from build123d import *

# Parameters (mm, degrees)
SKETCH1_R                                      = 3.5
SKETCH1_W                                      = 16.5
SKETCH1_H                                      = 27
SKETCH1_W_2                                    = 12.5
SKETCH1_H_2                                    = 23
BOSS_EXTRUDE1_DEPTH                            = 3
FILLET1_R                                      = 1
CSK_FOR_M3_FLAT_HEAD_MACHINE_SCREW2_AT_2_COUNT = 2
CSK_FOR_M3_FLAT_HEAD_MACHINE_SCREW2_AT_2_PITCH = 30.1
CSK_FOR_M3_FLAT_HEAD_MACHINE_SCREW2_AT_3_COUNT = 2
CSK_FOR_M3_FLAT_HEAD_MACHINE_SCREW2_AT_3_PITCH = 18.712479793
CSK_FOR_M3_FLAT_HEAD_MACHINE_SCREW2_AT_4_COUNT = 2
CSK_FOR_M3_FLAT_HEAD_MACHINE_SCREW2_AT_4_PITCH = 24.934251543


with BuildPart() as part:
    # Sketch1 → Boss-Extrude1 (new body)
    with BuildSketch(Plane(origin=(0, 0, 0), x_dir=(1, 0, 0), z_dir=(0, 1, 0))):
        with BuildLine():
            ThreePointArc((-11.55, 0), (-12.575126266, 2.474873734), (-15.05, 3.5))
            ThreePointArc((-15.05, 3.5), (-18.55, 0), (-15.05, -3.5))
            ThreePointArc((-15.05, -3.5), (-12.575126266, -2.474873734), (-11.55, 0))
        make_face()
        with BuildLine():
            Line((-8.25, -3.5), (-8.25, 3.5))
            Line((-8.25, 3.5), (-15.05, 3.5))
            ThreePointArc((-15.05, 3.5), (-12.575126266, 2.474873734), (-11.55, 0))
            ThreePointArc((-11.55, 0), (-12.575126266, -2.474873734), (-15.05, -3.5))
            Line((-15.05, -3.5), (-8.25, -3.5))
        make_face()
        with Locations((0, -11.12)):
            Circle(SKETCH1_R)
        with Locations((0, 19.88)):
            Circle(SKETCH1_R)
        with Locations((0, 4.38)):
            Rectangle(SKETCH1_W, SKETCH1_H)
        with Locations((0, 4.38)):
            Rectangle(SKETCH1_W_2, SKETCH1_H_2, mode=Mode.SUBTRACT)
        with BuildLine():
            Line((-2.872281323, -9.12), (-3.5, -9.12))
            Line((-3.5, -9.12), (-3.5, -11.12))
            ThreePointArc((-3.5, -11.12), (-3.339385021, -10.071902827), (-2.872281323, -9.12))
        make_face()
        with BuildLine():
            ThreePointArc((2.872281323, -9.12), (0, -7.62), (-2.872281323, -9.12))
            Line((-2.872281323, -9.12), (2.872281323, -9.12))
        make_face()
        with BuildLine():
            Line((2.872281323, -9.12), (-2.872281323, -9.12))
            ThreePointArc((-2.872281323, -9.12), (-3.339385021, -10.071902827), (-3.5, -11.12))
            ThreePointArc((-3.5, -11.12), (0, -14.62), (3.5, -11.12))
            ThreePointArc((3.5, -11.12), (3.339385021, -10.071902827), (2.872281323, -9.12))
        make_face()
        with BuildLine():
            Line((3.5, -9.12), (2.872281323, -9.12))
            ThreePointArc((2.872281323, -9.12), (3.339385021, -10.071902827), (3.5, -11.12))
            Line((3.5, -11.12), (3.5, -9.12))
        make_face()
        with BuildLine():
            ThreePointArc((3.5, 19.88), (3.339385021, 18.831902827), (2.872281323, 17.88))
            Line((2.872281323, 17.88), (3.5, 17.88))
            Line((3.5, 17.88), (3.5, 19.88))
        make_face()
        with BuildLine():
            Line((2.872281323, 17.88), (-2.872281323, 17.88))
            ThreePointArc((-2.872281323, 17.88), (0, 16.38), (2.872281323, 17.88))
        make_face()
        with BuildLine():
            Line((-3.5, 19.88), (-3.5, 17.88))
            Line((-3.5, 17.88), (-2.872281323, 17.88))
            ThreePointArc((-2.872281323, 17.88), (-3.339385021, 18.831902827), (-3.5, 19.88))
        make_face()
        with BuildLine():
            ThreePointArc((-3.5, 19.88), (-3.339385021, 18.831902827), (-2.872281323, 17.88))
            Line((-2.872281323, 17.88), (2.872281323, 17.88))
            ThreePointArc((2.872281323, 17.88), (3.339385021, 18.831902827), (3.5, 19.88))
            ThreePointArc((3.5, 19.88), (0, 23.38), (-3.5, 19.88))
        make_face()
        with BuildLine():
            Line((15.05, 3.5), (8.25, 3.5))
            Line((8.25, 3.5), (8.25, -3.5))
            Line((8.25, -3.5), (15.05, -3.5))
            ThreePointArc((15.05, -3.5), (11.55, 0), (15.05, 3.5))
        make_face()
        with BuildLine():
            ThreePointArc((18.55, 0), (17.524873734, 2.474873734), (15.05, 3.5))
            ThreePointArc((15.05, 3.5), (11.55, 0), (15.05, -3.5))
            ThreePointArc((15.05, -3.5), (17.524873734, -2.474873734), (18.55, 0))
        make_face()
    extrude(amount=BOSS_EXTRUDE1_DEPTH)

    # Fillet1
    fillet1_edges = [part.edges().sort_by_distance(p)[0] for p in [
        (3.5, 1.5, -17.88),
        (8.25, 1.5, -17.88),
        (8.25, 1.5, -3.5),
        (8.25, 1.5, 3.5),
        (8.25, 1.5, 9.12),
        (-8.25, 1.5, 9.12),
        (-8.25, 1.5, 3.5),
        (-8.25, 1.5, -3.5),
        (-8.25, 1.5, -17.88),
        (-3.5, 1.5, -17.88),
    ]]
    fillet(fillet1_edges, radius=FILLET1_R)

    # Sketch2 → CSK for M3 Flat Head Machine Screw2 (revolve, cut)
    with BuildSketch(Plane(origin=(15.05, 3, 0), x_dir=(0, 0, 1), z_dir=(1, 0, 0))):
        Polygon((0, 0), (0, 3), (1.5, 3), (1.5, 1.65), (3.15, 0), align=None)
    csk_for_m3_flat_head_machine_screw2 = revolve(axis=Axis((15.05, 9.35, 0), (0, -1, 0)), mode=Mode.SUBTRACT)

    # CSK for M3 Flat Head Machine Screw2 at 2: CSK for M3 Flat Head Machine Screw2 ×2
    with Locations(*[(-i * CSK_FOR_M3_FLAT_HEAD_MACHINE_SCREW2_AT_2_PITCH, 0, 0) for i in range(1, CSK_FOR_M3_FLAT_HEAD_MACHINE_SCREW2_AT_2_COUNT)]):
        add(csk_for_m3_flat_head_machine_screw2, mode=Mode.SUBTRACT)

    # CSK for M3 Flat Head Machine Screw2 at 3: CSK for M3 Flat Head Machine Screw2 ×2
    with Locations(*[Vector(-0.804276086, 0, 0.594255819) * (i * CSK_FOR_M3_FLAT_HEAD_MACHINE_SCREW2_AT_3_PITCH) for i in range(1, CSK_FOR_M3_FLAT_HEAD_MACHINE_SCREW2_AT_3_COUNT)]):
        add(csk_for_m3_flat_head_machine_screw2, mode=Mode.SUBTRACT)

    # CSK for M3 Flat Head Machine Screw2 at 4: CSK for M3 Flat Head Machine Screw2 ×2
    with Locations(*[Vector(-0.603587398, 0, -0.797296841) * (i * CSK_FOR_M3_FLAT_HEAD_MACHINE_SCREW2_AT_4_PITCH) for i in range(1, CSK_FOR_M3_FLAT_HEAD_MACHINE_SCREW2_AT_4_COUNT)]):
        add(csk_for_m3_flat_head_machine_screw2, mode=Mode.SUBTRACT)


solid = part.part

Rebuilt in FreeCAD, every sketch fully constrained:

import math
import FreeCAD as App
import Part
import Sketcher
Q = App.Units.Quantity


def edges_at(feature, points):
    """Names of the edges that pass closest to the given points."""
    edges = feature.Shape.Edges
    near = lambda p: min(range(len(edges)), key=lambda i: edges[i].distToShape(Part.Vertex(*p))[0])
    return sorted({f"Edge{near(p) + 1}" for p in points})


def add_polygon(sketch, points):
    """Adds a closed chain of lines whose ends are joined by coincident constraints."""
    first, n = sketch.GeometryCount, len(points)
    for a, b in zip(points, points[1:] + points[:1]):
        sketch.addGeometry(Part.LineSegment(App.Vector(*a, 0), App.Vector(*b, 0)), False)
    for i in range(n):
        sketch.addConstraint(Sketcher.Constraint("Coincident", first + i, 2, first + (i + 1) % n, 1))

doc = App.newDocument("Part")
body = doc.addObject("PartDesign::Body", "Body")

# Sketch on XZ plane
sketch1 = body.newObject("Sketcher::SketchObject", "Sketch")
sketch1.AttachmentSupport = (doc.getObject("XZ_Plane"), [""])
sketch1.MapMode = "FlatFace"
sketch1.addGeometry(Part.LineSegment(App.Vector(-8.2, -17.9, 0), App.Vector(-8.2, -3.5, 0)), False)  # 0
sketch1.addGeometry(Part.LineSegment(App.Vector(-8.2, -3.5, 0), App.Vector(-15.1, -3.5, 0)), False)  # 1
sketch1.addGeometry(Part.ArcOfCircle(Part.Circle(App.Vector(-15.1, 0, 0), App.Vector(0, 0, 1), 3.5), math.radians(90), math.radians(270)), False)  # 2
sketch1.addGeometry(Part.LineSegment(App.Vector(-15.1, 3.5, 0), App.Vector(-8.2, 3.5, 0)), False)  # 3
sketch1.addGeometry(Part.LineSegment(App.Vector(-8.2, 3.5, 0), App.Vector(-8.2, 9.1, 0)), False)  # 4
sketch1.addGeometry(Part.LineSegment(App.Vector(-8.2, 9.1, 0), App.Vector(-3.5, 9.1, 0)), False)  # 5
sketch1.addGeometry(Part.LineSegment(App.Vector(-3.5, 9.1, 0), App.Vector(-3.5, 11.1, 0)), False)  # 6
sketch1.addGeometry(Part.ArcOfCircle(Part.Circle(App.Vector(0, 11.1, 0), App.Vector(0, 0, 1), 3.5), math.radians(0), math.radians(180)), False)  # 7
sketch1.addGeometry(Part.LineSegment(App.Vector(3.5, 11.1, 0), App.Vector(3.5, 9.1, 0)), False)  # 8
sketch1.addGeometry(Part.LineSegment(App.Vector(3.5, 9.1, 0), App.Vector(8.2, 9.1, 0)), False)  # 9
sketch1.addGeometry(Part.LineSegment(App.Vector(8.2, 9.1, 0), App.Vector(8.2, 3.5, 0)), False)  # 10
sketch1.addGeometry(Part.LineSegment(App.Vector(8.2, 3.5, 0), App.Vector(15.1, 3.5, 0)), False)  # 11
sketch1.addGeometry(Part.ArcOfCircle(Part.Circle(App.Vector(15, 0, 0), App.Vector(0, 0, 1), 3.5), math.radians(0), math.radians(90)), False)  # 12
sketch1.addGeometry(Part.ArcOfCircle(Part.Circle(App.Vector(15, 0, 0), App.Vector(0, 0, 1), 3.5), math.radians(-90), math.radians(0)), False)  # 13
sketch1.addGeometry(Part.LineSegment(App.Vector(15.1, -3.5, 0), App.Vector(8.2, -3.5, 0)), False)  # 14
sketch1.addGeometry(Part.LineSegment(App.Vector(8.2, -3.5, 0), App.Vector(8.2, -17.9, 0)), False)  # 15
sketch1.addGeometry(Part.LineSegment(App.Vector(8.2, -17.9, 0), App.Vector(3.5, -17.9, 0)), False)  # 16
sketch1.addGeometry(Part.LineSegment(App.Vector(3.5, -17.9, 0), App.Vector(3.5, -19.9, 0)), False)  # 17
sketch1.addGeometry(Part.ArcOfCircle(Part.Circle(App.Vector(0, -19.9, 0), App.Vector(0, 0, 1), 3.5), math.radians(180), math.radians(360)), False)  # 18
sketch1.addGeometry(Part.LineSegment(App.Vector(-3.5, -19.9, 0), App.Vector(-3.5, -17.9, 0)), False)  # 19
sketch1.addGeometry(Part.LineSegment(App.Vector(-3.5, -17.9, 0), App.Vector(-8.2, -17.9, 0)), False)  # 20
add_polygon(sketch1, [(6.2, -15.9), (6.2, 7.1), (-6.2, 7.1), (-6.2, -15.9)])  # lines 21-24
sketch1.addConstraint(Sketcher.Constraint("Coincident", 0, 2, 1, 1))
sketch1.addConstraint(Sketcher.Constraint("Tangent", 1, 2, 2, 2))
sketch1.addConstraint(Sketcher.Constraint("Tangent", 2, 1, 3, 1))
sketch1.addConstraint(Sketcher.Constraint("Coincident", 3, 2, 4, 1))
sketch1.addConstraint(Sketcher.Constraint("Coincident", 4, 2, 5, 1))
sketch1.addConstraint(Sketcher.Constraint("Coincident", 5, 2, 6, 1))
sketch1.addConstraint(Sketcher.Constraint("Tangent", 6, 2, 7, 2))
sketch1.addConstraint(Sketcher.Constraint("Tangent", 7, 1, 8, 1))
sketch1.addConstraint(Sketcher.Constraint("Coincident", 8, 2, 9, 1))
sketch1.addConstraint(Sketcher.Constraint("Coincident", 9, 2, 10, 1))
sketch1.addConstraint(Sketcher.Constraint("Coincident", 10, 2, 11, 1))
sketch1.addConstraint(Sketcher.Constraint("Tangent", 11, 2, 12, 2))
sketch1.addConstraint(Sketcher.Constraint("Tangent", 12, 1, 13, 2))
sketch1.addConstraint(Sketcher.Constraint("Tangent", 13, 1, 14, 1))
sketch1.addConstraint(Sketcher.Constraint("Coincident", 14, 2, 15, 1))
sketch1.addConstraint(Sketcher.Constraint("Coincident", 15, 2, 16, 1))
sketch1.addConstraint(Sketcher.Constraint("Coincident", 16, 2, 17, 1))
sketch1.addConstraint(Sketcher.Constraint("Tangent", 17, 2, 18, 2))
sketch1.addConstraint(Sketcher.Constraint("Tangent", 18, 1, 19, 1))
sketch1.addConstraint(Sketcher.Constraint("Coincident", 19, 2, 20, 1))
sketch1.addConstraint(Sketcher.Constraint("Coincident", 20, 2, 0, 1))
sketch1.addConstraint(Sketcher.Constraint("Vertical", 0))
sketch1.addConstraint(Sketcher.Constraint("Horizontal", 1))
sketch1.addConstraint(Sketcher.Constraint("Horizontal", 3))
sketch1.addConstraint(Sketcher.Constraint("Vertical", 4))
sketch1.addConstraint(Sketcher.Constraint("Horizontal", 5))
sketch1.addConstraint(Sketcher.Constraint("Vertical", 6))
sketch1.addConstraint(Sketcher.Constraint("Vertical", 8))
sketch1.addConstraint(Sketcher.Constraint("Horizontal", 9))
sketch1.addConstraint(Sketcher.Constraint("Vertical", 10))
sketch1.addConstraint(Sketcher.Constraint("Horizontal", 11))
sketch1.addConstraint(Sketcher.Constraint("Horizontal", 14))
sketch1.addConstraint(Sketcher.Constraint("Vertical", 15))
sketch1.addConstraint(Sketcher.Constraint("Horizontal", 16))
sketch1.addConstraint(Sketcher.Constraint("Vertical", 17))
sketch1.addConstraint(Sketcher.Constraint("Vertical", 19))
sketch1.addConstraint(Sketcher.Constraint("Horizontal", 20))
sketch1.addConstraint(Sketcher.Constraint("Vertical", 21))
sketch1.addConstraint(Sketcher.Constraint("Horizontal", 22))
sketch1.addConstraint(Sketcher.Constraint("Vertical", 23))
sketch1.addConstraint(Sketcher.Constraint("Horizontal", 24))
sketch1.addConstraint(Sketcher.Constraint("Equal", 2, 7))
sketch1.addConstraint(Sketcher.Constraint("Equal", 7, 12))
sketch1.addConstraint(Sketcher.Constraint("Equal", 12, 13))
sketch1.addConstraint(Sketcher.Constraint("Equal", 13, 18))
sketch1.addConstraint(Sketcher.Constraint("Symmetric", 2, 3, 12, 3, -1, 1))
sketch1.addConstraint(Sketcher.Constraint("Symmetric", 5, 2, 8, 2, -2))
sketch1.addConstraint(Sketcher.Constraint("Symmetric", 3, 2, 10, 2, -2))
sketch1.addConstraint(Sketcher.Constraint("Symmetric", 16, 2, 19, 2, -2))
sketch1.addConstraint(Sketcher.Constraint("PointOnObject", 12, 1, -1))
sketch1.addConstraint(Sketcher.Constraint("Vertical", 0, 2, 3, 2))
sketch1.addConstraint(Sketcher.Constraint("Vertical", 10, 2, 14, 2))
sketch1.addConstraint(Sketcher.Constraint("Equal", 8, 17))
sketch1.addConstraint(Sketcher.Constraint("Radius", 2, 3.5))
sketch1.addConstraint(Sketcher.Constraint("DistanceY", 6, 1, 6, 2, 2.0))
sketch1.addConstraint(Sketcher.Constraint("DistanceY", 21, 1, 21, 2, 23.0))
sketch1.addConstraint(Sketcher.Constraint("DistanceX", 1, 2, 1, 1, 6.8))
sketch1.addConstraint(Sketcher.Constraint("DistanceX", 22, 2, 22, 1, 12.5))
sketch1.addConstraint(Sketcher.Constraint("DistanceY", 18, 3, 7, 3, 31.0))
sketch1.addConstraint(Sketcher.Constraint("DistanceX", 21, 2, 9, 2, 2.0))
sketch1.addConstraint(Sketcher.Constraint("DistanceY", 21, 2, 9, 2, 2.0))
sketch1.addConstraint(Sketcher.Constraint("DistanceX", 4, 2, 22, 2, 2.0))
sketch1.addConstraint(Sketcher.Constraint("DistanceY", 0, 1, 0, 2, 14.38))
pad1 = body.newObject("PartDesign::Pad", "Pad")
pad1.Profile = sketch1
pad1.Length = 3
pad1.Reversed = True
doc.recompute()

fillet = body.newObject("PartDesign::Fillet", "Fillet")
fillet.Base = (pad1, edges_at(pad1, [
    (3.5, 1.5, -17.88),
    (8.25, 1.5, -17.88),
    (8.25, 1.5, -3.5),
    (8.25, 1.5, 3.5),
    (8.25, 1.5, 9.12),
    (-8.25, 1.5, 9.12),
    (-8.25, 1.5, 3.5),
    (-8.25, 1.5, -3.5),
    (-8.25, 1.5, -17.88),
    (-3.5, 1.5, -17.88),
]))
fillet.Radius = 1

# Sketch on YZ plane
sketch2 = body.newObject("Sketcher::SketchObject", "Sketch001")
sketch2.AttachmentSupport = (doc.getObject("YZ_Plane"), [""])
sketch2.MapMode = "FlatFace"
sketch2.AttachmentOffset = App.Placement(App.Vector(0, 0, 15.05), App.Rotation())
add_polygon(sketch2, [(0, 0), (3, 0), (3, 3.1), (1.4, 1.5), (0, 1.5)])  # lines 0-4
sketch2.addConstraint(Sketcher.Constraint("Horizontal", 0))
sketch2.addConstraint(Sketcher.Constraint("Vertical", 1))
sketch2.addConstraint(Sketcher.Constraint("Horizontal", 3))
sketch2.addConstraint(Sketcher.Constraint("Vertical", 4))
sketch2.addConstraint(Sketcher.Constraint("Coincident", 4, 2, -1, 1))
sketch2.addConstraint(Sketcher.Constraint("DistanceX", 0, 1, 0, 2, 3.0))
sketch2.addConstraint(Sketcher.Constraint("Angle", 2, Q("-135 deg")))
sketch2.addConstraint(Sketcher.Constraint("DistanceY", 4, 2, 4, 1, 1.5))
sketch2.addConstraint(Sketcher.Constraint("DistanceX", 3, 2, 3, 1, 1.35))
groove = body.newObject("PartDesign::Groove", "Groove")
groove.Profile = sketch2
groove.ReferenceAxis = (sketch2, ["H_Axis"])
groove.Angle = 360
doc.recompute()

linearpattern = body.newObject("PartDesign::LinearPattern", "LinearPattern")
linearpattern.Originals = [groove]
linearpattern.Direction = (doc.getObject("X_Axis"), [""])
linearpattern.Mode = "offset"
linearpattern.Offset = 30.1
linearpattern.Occurrences = 2
linearpattern.Reversed = True
body.Tip = linearpattern
doc.recompute()

datumline = body.newObject("PartDesign::Line", "DatumLine")
datumline.Placement = App.Placement(App.Vector(0, 0, 0), App.Rotation(App.Vector(0, 0, 1), App.Vector(-0.804276086, 0, 0.594255819)))
linearpattern2 = body.newObject("PartDesign::LinearPattern", "LinearPattern001")
linearpattern2.Originals = [groove]
linearpattern2.Direction = (datumline, [""])
linearpattern2.Mode = "offset"
linearpattern2.Offset = 18.71248
linearpattern2.Occurrences = 2
body.Tip = linearpattern2
doc.recompute()

datumline2 = body.newObject("PartDesign::Line", "DatumLine001")
datumline2.Placement = App.Placement(App.Vector(0, 0, 0), App.Rotation(App.Vector(0, 0, 1), App.Vector(-0.603587398, 0, -0.797296841)))
linearpattern3 = body.newObject("PartDesign::LinearPattern", "LinearPattern002")
linearpattern3.Originals = [groove]
linearpattern3.Direction = (datumline2, [""])
linearpattern3.Mode = "offset"
linearpattern3.Offset = 24.934252
linearpattern3.Occurrences = 2
body.Tip = linearpattern3

doc.recompute()
